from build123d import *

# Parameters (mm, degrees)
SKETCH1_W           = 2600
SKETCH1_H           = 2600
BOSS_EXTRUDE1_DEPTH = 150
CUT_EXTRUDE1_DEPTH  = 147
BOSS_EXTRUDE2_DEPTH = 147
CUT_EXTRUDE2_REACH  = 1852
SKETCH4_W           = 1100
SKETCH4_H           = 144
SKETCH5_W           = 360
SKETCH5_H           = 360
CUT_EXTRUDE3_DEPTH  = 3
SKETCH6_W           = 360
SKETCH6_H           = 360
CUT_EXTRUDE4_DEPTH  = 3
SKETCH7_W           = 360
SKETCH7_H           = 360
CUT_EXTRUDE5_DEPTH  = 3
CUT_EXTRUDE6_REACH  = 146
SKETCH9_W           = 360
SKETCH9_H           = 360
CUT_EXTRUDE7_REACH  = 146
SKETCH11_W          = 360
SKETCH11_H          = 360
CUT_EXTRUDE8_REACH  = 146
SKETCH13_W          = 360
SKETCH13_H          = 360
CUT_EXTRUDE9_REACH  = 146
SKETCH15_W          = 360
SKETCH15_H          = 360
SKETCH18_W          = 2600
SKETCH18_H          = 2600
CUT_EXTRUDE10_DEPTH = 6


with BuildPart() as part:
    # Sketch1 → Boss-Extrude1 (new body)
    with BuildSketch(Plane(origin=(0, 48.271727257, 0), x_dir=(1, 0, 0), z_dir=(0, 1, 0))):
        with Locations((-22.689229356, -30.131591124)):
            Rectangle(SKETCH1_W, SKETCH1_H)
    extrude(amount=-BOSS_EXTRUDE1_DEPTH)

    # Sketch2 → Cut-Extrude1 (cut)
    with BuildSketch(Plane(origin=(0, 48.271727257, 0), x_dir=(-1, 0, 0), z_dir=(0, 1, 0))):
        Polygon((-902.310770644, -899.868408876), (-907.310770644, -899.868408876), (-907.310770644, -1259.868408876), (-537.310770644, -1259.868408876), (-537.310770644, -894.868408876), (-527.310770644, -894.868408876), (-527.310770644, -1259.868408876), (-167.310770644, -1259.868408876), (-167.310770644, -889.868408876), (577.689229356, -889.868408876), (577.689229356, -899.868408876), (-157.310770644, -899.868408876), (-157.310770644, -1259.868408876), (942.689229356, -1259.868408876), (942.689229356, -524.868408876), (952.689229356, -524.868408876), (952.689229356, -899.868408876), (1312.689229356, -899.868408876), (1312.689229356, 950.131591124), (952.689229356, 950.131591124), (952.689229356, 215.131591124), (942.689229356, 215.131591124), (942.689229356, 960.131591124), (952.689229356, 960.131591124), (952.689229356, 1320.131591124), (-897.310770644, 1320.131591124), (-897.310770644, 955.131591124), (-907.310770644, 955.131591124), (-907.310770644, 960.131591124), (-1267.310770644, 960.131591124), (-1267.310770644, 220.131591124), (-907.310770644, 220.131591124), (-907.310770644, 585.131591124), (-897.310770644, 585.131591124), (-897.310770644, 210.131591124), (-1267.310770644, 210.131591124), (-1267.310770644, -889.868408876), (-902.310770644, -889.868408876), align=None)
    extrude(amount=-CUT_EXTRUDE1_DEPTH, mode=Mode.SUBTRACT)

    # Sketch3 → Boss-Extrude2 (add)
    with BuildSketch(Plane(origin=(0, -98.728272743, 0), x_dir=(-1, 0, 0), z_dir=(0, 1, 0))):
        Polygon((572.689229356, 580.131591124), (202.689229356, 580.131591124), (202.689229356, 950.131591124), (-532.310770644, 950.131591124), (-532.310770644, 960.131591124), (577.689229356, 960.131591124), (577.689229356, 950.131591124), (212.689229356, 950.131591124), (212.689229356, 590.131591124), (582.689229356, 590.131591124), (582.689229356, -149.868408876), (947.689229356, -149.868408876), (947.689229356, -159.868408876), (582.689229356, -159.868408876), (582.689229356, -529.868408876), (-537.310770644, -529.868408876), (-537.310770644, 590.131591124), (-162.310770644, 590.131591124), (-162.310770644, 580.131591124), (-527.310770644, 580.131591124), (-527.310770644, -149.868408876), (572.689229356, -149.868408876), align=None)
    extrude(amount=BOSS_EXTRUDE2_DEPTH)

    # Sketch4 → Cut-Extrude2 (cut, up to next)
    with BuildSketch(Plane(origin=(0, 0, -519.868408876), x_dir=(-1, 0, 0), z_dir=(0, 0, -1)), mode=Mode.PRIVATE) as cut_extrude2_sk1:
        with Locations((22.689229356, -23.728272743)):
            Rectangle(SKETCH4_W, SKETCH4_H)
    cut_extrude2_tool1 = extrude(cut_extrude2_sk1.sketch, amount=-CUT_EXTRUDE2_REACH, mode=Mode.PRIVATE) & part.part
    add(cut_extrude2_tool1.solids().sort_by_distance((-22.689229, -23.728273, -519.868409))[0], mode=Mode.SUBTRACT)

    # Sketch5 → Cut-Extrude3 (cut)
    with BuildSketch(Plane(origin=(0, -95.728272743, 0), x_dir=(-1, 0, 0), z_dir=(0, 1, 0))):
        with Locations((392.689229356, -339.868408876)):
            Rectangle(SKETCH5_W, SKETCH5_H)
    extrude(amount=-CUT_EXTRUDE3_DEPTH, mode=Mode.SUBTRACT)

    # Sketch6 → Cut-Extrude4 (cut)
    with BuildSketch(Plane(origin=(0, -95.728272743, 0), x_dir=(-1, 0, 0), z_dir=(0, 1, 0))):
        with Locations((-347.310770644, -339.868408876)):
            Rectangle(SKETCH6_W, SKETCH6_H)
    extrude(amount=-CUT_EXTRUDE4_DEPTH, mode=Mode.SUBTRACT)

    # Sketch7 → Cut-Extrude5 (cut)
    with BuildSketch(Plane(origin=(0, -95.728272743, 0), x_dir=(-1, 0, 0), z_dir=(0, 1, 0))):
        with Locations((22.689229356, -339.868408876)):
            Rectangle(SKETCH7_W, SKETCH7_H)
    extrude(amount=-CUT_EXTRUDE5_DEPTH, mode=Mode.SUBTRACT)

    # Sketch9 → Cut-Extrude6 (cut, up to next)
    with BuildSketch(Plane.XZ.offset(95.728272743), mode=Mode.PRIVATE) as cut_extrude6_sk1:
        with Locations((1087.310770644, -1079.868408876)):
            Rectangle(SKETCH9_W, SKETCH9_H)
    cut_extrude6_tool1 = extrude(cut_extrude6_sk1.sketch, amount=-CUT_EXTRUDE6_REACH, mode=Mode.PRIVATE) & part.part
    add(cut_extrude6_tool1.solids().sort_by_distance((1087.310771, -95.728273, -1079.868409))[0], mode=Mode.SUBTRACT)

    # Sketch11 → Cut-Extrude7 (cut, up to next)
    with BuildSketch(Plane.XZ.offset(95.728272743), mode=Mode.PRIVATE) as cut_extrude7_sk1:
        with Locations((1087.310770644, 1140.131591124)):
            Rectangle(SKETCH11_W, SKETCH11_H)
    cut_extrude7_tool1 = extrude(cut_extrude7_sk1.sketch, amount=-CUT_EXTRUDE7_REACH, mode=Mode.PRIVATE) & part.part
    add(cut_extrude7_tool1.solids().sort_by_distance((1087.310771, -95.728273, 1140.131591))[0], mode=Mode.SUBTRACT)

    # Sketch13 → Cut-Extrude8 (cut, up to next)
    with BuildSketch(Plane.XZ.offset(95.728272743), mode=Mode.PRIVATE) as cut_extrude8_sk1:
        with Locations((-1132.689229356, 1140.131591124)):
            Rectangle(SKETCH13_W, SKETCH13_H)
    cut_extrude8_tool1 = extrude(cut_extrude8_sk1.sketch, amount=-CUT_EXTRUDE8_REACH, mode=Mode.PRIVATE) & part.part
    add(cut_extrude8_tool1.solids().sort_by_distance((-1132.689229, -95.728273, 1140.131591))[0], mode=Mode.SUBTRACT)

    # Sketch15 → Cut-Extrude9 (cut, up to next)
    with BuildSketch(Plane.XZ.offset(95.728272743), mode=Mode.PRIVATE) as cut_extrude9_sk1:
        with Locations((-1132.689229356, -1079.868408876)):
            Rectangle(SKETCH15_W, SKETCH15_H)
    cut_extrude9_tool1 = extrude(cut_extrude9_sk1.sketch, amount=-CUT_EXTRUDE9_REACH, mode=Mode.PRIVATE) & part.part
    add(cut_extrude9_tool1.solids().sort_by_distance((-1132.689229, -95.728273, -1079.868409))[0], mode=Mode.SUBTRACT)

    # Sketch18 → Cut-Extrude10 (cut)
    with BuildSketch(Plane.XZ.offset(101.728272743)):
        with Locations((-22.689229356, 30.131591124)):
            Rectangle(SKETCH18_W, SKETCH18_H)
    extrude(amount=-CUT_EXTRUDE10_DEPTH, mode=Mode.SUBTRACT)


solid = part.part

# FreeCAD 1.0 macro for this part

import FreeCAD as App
import Part
import Sketcher

V = App.Vector
Q = App.Units.Quantity


def add_polygon(sketch, points):
    """Adds a closed chain of lines whose ends are joined by coincident constraints."""
    first, n = sketch.GeometryCount, len(points)
    for a, b in zip(points, points[1:] + points[:1]):
        sketch.addGeometry(Part.LineSegment(App.Vector(*a, 0), App.Vector(*b, 0)), False)
    for i in range(n):
        sketch.addConstraint(Sketcher.Constraint("Coincident", first + i, 2, first + (i + 1) % n, 1))

doc = App.newDocument("Part")
body = doc.addObject("PartDesign::Body", "Body")
body.AllowCompound = True

# Sketch on XZ plane
sketch1 = body.newObject("Sketcher::SketchObject", "Sketch")
sketch1.AttachmentSupport = (doc.getObject("XZ_Plane"), [""])
sketch1.MapMode = "FlatFace"
sketch1.AttachmentOffset = App.Placement(V(0, 0, -48.271727), App.Rotation())
add_polygon(sketch1, [(-1323, -1270), (-1323, 1330), (1277, 1330), (1277, -1270)])  # lines 0-3
sketch1.addConstraint(Sketcher.Constraint("Vertical", 0))
sketch1.addConstraint(Sketcher.Constraint("Horizontal", 1))
sketch1.addConstraint(Sketcher.Constraint("Vertical", 2))
sketch1.addConstraint(Sketcher.Constraint("Horizontal", 3))
sketch1.addConstraint(Sketcher.Constraint("Equal", 3, 0))
sketch1.addConstraint(Sketcher.Constraint("DistanceX", 1, 1, 1, 2, Q("2600 mm")))
sketch1.addConstraint(Sketcher.Constraint("DistanceX", 0, 2, -1, 1, Q("1322.689229 mm")))
sketch1.addConstraint(Sketcher.Constraint("DistanceY", -1, 1, 0, 2, Q("1330.131591 mm")))
pad1 = body.newObject("PartDesign::Pad", "Pad")
pad1.Profile = sketch1
pad1.Length = 150

# Sketch on XZ plane
sketch2 = body.newObject("Sketcher::SketchObject", "Sketch001")
sketch2.AttachmentSupport = (doc.getObject("XZ_Plane"), [""])
sketch2.MapMode = "FlatFace"
sketch2.AttachmentOffset = App.Placement(V(0, 0, -48.271727), App.Rotation())
add_polygon(sketch2, [(902, -900), (907, -900), (907, -1260), (537, -1260), (537, -895), (527, -895), (527, -1260), (167, -1260), (167, -890), (-578, -890), (-578, -900), (157, -900), (157, -1260), (-943, -1260), (-943, -525), (-953, -525), (-953, -900), (-1313, -900), (-1313, 950), (-953, 950), (-953, 215), (-943, 215), (-943, 960), (-953, 960), (-953, 1320), (897, 1320), (897, 955), (907, 955), (907, 960), (1267, 960), (1267, 220), (907, 220), (907, 585), (897, 585), (897, 210), (1267, 210), (1267, -890), (902, -890)])  # lines 0-37
sketch2.addConstraint(Sketcher.Constraint("Horizontal", 0))
sketch2.addConstraint(Sketcher.Constraint("Vertical", 1))
sketch2.addConstraint(Sketcher.Constraint("Horizontal", 2))
sketch2.addConstraint(Sketcher.Constraint("Vertical", 3))
sketch2.addConstraint(Sketcher.Constraint("Horizontal", 4))
sketch2.addConstraint(Sketcher.Constraint("Vertical", 5))
sketch2.addConstraint(Sketcher.Constraint("Horizontal", 6))
sketch2.addConstraint(Sketcher.Constraint("Vertical", 7))
sketch2.addConstraint(Sketcher.Constraint("Horizontal", 8))
sketch2.addConstraint(Sketcher.Constraint("Vertical", 9))
sketch2.addConstraint(Sketcher.Constraint("Horizontal", 10))
sketch2.addConstraint(Sketcher.Constraint("Vertical", 11))
sketch2.addConstraint(Sketcher.Constraint("Horizontal", 12))
sketch2.addConstraint(Sketcher.Constraint("Vertical", 13))
sketch2.addConstraint(Sketcher.Constraint("Horizontal", 14))
sketch2.addConstraint(Sketcher.Constraint("Vertical", 15))
sketch2.addConstraint(Sketcher.Constraint("Horizontal", 16))
sketch2.addConstraint(Sketcher.Constraint("Vertical", 17))
sketch2.addConstraint(Sketcher.Constraint("Horizontal", 18))
sketch2.addConstraint(Sketcher.Constraint("Vertical", 19))
sketch2.addConstraint(Sketcher.Constraint("Horizontal", 20))
sketch2.addConstraint(Sketcher.Constraint("Vertical", 21))
sketch2.addConstraint(Sketcher.Constraint("Horizontal", 22))
sketch2.addConstraint(Sketcher.Constraint("Vertical", 23))
sketch2.addConstraint(Sketcher.Constraint("Horizontal", 24))
sketch2.addConstraint(Sketcher.Constraint("Vertical", 25))
sketch2.addConstraint(Sketcher.Constraint("Horizontal", 26))
sketch2.addConstraint(Sketcher.Constraint("Vertical", 27))
sketch2.addConstraint(Sketcher.Constraint("Horizontal", 28))
sketch2.addConstraint(Sketcher.Constraint("Vertical", 29))
sketch2.addConstraint(Sketcher.Constraint("Horizontal", 30))
sketch2.addConstraint(Sketcher.Constraint("Vertical", 31))
sketch2.addConstraint(Sketcher.Constraint("Horizontal", 32))
sketch2.addConstraint(Sketcher.Constraint("Vertical", 33))
sketch2.addConstraint(Sketcher.Constraint("Horizontal", 34))
sketch2.addConstraint(Sketcher.Constraint("Vertical", 35))
sketch2.addConstraint(Sketcher.Constraint("Horizontal", 36))
sketch2.addConstraint(Sketcher.Constraint("Vertical", 37))
sketch2.addConstraint(Sketcher.Constraint("Horizontal", 2, 2, 5, 2))
sketch2.addConstraint(Sketcher.Constraint("Horizontal", 0, 2, 9, 2))
sketch2.addConstraint(Sketcher.Constraint("Horizontal", 6, 2, 11, 2))
sketch2.addConstraint(Sketcher.Constraint("Horizontal", 10, 2, 15, 2))
sketch2.addConstraint(Sketcher.Constraint("Horizontal", 22, 2, 27, 2))
sketch2.addConstraint(Sketcher.Constraint("Horizontal", 8, 2, 35, 2))
sketch2.addConstraint(Sketcher.Constraint("Vertical", 15, 2, 18, 2))
sketch2.addConstraint(Sketcher.Constraint("Vertical", 13, 2, 20, 2))
sketch2.addConstraint(Sketcher.Constraint("Vertical", 19, 2, 22, 2))
sketch2.addConstraint(Sketcher.Constraint("Vertical", 1, 2, 26, 2))
sketch2.addConstraint(Sketcher.Constraint("Vertical", 27, 2, 30, 2))
sketch2.addConstraint(Sketcher.Constraint("Vertical", 25, 2, 32, 2))
sketch2.addConstraint(Sketcher.Constraint("Vertical", 29, 2, 34, 2))
sketch2.addConstraint(Sketcher.Constraint("Equal", 4, 14))
sketch2.addConstraint(Sketcher.Constraint("Equal", 6, 16))
sketch2.addConstraint(Sketcher.Constraint("Equal", 22, 26))
sketch2.addConstraint(Sketcher.Constraint("Equal", 18, 28))
sketch2.addConstraint(Sketcher.Constraint("Equal", 2, 34))
sketch2.addConstraint(Sketcher.Constraint("Equal", 30, 1))
sketch2.addConstraint(Sketcher.Constraint("Equal", 36, 3))
sketch2.addConstraint(Sketcher.Constraint("Equal", 34, 7))
sketch2.addConstraint(Sketcher.Constraint("Equal", 10, 13))
sketch2.addConstraint(Sketcher.Constraint("Equal", 24, 17))
sketch2.addConstraint(Sketcher.Constraint("Equal", 13, 19))
sketch2.addConstraint(Sketcher.Constraint("Equal", 8, 21))
sketch2.addConstraint(Sketcher.Constraint("Equal", 11, 23))
sketch2.addConstraint(Sketcher.Constraint("Equal", 5, 25))
sketch2.addConstraint(Sketcher.Constraint("Equal", 25, 31))
sketch2.addConstraint(Sketcher.Constraint("Equal", 15, 33))
sketch2.addConstraint(Sketcher.Constraint("Equal", 12, 35))
sketch2.addConstraint(Sketcher.Constraint("DistanceX", 0, 1, 0, 2, Q("5 mm")))
sketch2.addConstraint(Sketcher.Constraint("DistanceX", 2, 2, 2, 1, Q("370 mm")))
sketch2.addConstraint(Sketcher.Constraint("DistanceX", 4, 2, 4, 1, Q("10 mm")))
sketch2.addConstraint(Sketcher.Constraint("DistanceX", 8, 2, 8, 1, Q("745 mm")))
sketch2.addConstraint(Sketcher.Constraint("DistanceX", 10, 1, 10, 2, Q("735 mm")))
sketch2.addConstraint(Sketcher.Constraint("DistanceX", 12, 2, 12, 1, Q("1100 mm")))
sketch2.addConstraint(Sketcher.Constraint("DistanceX", -1, 1, 0, 2, Q("907.310771 mm")))
sketch2.addConstraint(Sketcher.Constraint("DistanceY", 0, 2, -1, 1, Q("899.868409 mm")))
pocket1 = body.newObject("PartDesign::Pocket", "Pocket")
pocket1.Profile = sketch2
pocket1.Length = 147
pocket1.Reversed = True

# Sketch on XZ plane
sketch3 = body.newObject("Sketcher::SketchObject", "Sketch002")
sketch3.AttachmentSupport = (doc.getObject("XZ_Plane"), [""])
sketch3.MapMode = "FlatFace"
sketch3.AttachmentOffset = App.Placement(V(0, 0, 98.728273), App.Rotation())
add_polygon(sketch3, [(-203, 580), (-573, 580), (-573, -150), (527, -150), (527, 580), (162, 580), (162, 590), (537, 590), (537, -530), (-583, -530), (-583, -160), (-948, -160), (-948, -150), (-583, -150), (-583, 590), (-213, 590), (-213, 950), (-578, 950), (-578, 960), (532, 960), (532, 950), (-203, 950)])  # lines 0-21
sketch3.addConstraint(Sketcher.Constraint("Horizontal", 0))
sketch3.addConstraint(Sketcher.Constraint("Vertical", 1))
sketch3.addConstraint(Sketcher.Constraint("Horizontal", 2))
sketch3.addConstraint(Sketcher.Constraint("Vertical", 3))
sketch3.addConstraint(Sketcher.Constraint("Horizontal", 4))
sketch3.addConstraint(Sketcher.Constraint("Vertical", 5))
sketch3.addConstraint(Sketcher.Constraint("Horizontal", 6))
sketch3.addConstraint(Sketcher.Constraint("Vertical", 7))
sketch3.addConstraint(Sketcher.Constraint("Horizontal", 8))
sketch3.addConstraint(Sketcher.Constraint("Vertical", 9))
sketch3.addConstraint(Sketcher.Constraint("Horizontal", 10))
sketch3.addConstraint(Sketcher.Constraint("Vertical", 11))
sketch3.addConstraint(Sketcher.Constraint("Horizontal", 12))
sketch3.addConstraint(Sketcher.Constraint("Vertical", 13))
sketch3.addConstraint(Sketcher.Constraint("Horizontal", 14))
sketch3.addConstraint(Sketcher.Constraint("Vertical", 15))
sketch3.addConstraint(Sketcher.Constraint("Horizontal", 16))
sketch3.addConstraint(Sketcher.Constraint("Vertical", 17))
sketch3.addConstraint(Sketcher.Constraint("Horizontal", 18))
sketch3.addConstraint(Sketcher.Constraint("Vertical", 19))
sketch3.addConstraint(Sketcher.Constraint("Horizontal", 20))
sketch3.addConstraint(Sketcher.Constraint("Vertical", 21))
sketch3.addConstraint(Sketcher.Constraint("Horizontal", 0, 2, 3, 2))
sketch3.addConstraint(Sketcher.Constraint("Horizontal", 2, 2, 11, 2))
sketch3.addConstraint(Sketcher.Constraint("Horizontal", 6, 2, 13, 2))
sketch3.addConstraint(Sketcher.Constraint("Horizontal", 16, 2, 19, 2))
sketch3.addConstraint(Sketcher.Constraint("Vertical", 9, 2, 12, 2))
sketch3.addConstraint(Sketcher.Constraint("Equal", 4, 10))
sketch3.addConstraint(Sketcher.Constraint("Equal", 0, 14))
sketch3.addConstraint(Sketcher.Constraint("Equal", 12, 16))
sketch3.addConstraint(Sketcher.Constraint("Equal", 8, 7))
sketch3.addConstraint(Sketcher.Constraint("Equal", 14, 9))
sketch3.addConstraint(Sketcher.Constraint("Equal", 5, 11))
sketch3.addConstraint(Sketcher.Constraint("Equal", 11, 17))
sketch3.addConstraint(Sketcher.Constraint("Equal", 9, 21))
sketch3.addConstraint(Sketcher.Constraint("DistanceX", 0, 2, 0, 1, Q("370 mm")))
sketch3.addConstraint(Sketcher.Constraint("DistanceX", 2, 1, 2, 2, Q("1100 mm")))
sketch3.addConstraint(Sketcher.Constraint("DistanceX", 4, 2, 4, 1, Q("365 mm")))
sketch3.addConstraint(Sketcher.Constraint("DistanceX", 6, 1, 6, 2, Q("375 mm")))
sketch3.addConstraint(Sketcher.Constraint("DistanceX", 8, 2, 8, 1, Q("1120 mm")))
sketch3.addConstraint(Sketcher.Constraint("DistanceX", 18, 1, 18, 2, Q("1110 mm")))
sketch3.addConstraint(Sketcher.Constraint("DistanceY", 1, 2, 1, 1, Q("730 mm")))
sketch3.addConstraint(Sketcher.Constraint("DistanceX", 0, 2, -1, 1, Q("572.689229 mm")))
sketch3.addConstraint(Sketcher.Constraint("DistanceY", -1, 1, 0, 2, Q("580.131591 mm")))
pad2 = body.newObject("PartDesign::Pad", "Pad001")
pad2.Profile = sketch3
pad2.Length = 147
pad2.Reversed = True

# Sketch on XY plane
sketch4 = body.newObject("Sketcher::SketchObject", "Sketch003")
sketch4.AttachmentSupport = (doc.getObject("XY_Plane"), [""])
sketch4.MapMode = "FlatFace"
sketch4.AttachmentOffset = App.Placement(V(0, 0, -519.868409), App.Rotation())
add_polygon(sketch4, [(527, 48), (527, -96), (-573, -96), (-573, 48)])  # lines 0-3
sketch4.addConstraint(Sketcher.Constraint("Vertical", 0))
sketch4.addConstraint(Sketcher.Constraint("Horizontal", 1))
sketch4.addConstraint(Sketcher.Constraint("Vertical", 2))
sketch4.addConstraint(Sketcher.Constraint("Horizontal", 3))
sketch4.addConstraint(Sketcher.Constraint("DistanceX", 1, 2, 1, 1, Q("1100 mm")))
sketch4.addConstraint(Sketcher.Constraint("DistanceY", 0, 2, 0, 1, Q("144 mm")))
sketch4.addConstraint(Sketcher.Constraint("DistanceX", -1, 1, 0, 2, Q("527.310771 mm")))
sketch4.addConstraint(Sketcher.Constraint("DistanceY", 0, 2, -1, 1, Q("95.728273 mm")))
pocket2 = body.newObject("PartDesign::Pocket", "Pocket001")
pocket2.Profile = sketch4
pocket2.Type = "UpToFirst"
pocket2.Reversed = True

# Sketch on XZ plane
sketch5 = body.newObject("Sketcher::SketchObject", "Sketch004")
sketch5.AttachmentSupport = (doc.getObject("XZ_Plane"), [""])
sketch5.MapMode = "FlatFace"
sketch5.AttachmentOffset = App.Placement(V(0, 0, 95.728273), App.Rotation())
add_polygon(sketch5, [(-213, -160), (-213, -520), (-573, -520), (-573, -160)])  # lines 0-3
sketch5.addConstraint(Sketcher.Constraint("Vertical", 0))
sketch5.addConstraint(Sketcher.Constraint("Horizontal", 1))
sketch5.addConstraint(Sketcher.Constraint("Vertical", 2))
sketch5.addConstraint(Sketcher.Constraint("Horizontal", 3))
sketch5.addConstraint(Sketcher.Constraint("Equal", 3, 0))
sketch5.addConstraint(Sketcher.Constraint("DistanceX", 1, 2, 1, 1, Q("360 mm")))
sketch5.addConstraint(Sketcher.Constraint("DistanceX", 0, 2, -1, 1, Q("212.689229 mm")))
sketch5.addConstraint(Sketcher.Constraint("DistanceY", 0, 2, -1, 1, Q("519.868409 mm")))
pocket3 = body.newObject("PartDesign::Pocket", "Pocket002")
pocket3.Profile = sketch5
pocket3.Length = 3
pocket3.Reversed = True

# Sketch on XZ plane
sketch6 = body.newObject("Sketcher::SketchObject", "Sketch005")
sketch6.AttachmentSupport = (doc.getObject("XZ_Plane"), [""])
sketch6.MapMode = "FlatFace"
sketch6.AttachmentOffset = App.Placement(V(0, 0, 95.728273), App.Rotation())
add_polygon(sketch6, [(527, -160), (527, -520), (167, -520), (167, -160)])  # lines 0-3
sketch6.addConstraint(Sketcher.Constraint("Vertical", 0))
sketch6.addConstraint(Sketcher.Constraint("Horizontal", 1))
sketch6.addConstraint(Sketcher.Constraint("Vertical", 2))
sketch6.addConstraint(Sketcher.Constraint("Horizontal", 3))
sketch6.addConstraint(Sketcher.Constraint("Equal", 3, 0))
sketch6.addConstraint(Sketcher.Constraint("DistanceX", 1, 2, 1, 1, Q("360 mm")))
sketch6.addConstraint(Sketcher.Constraint("DistanceX", -1, 1, 0, 2, Q("527.310771 mm")))
sketch6.addConstraint(Sketcher.Constraint("DistanceY", 0, 2, -1, 1, Q("519.868409 mm")))
pocket4 = body.newObject("PartDesign::Pocket", "Pocket003")
pocket4.Profile = sketch6
pocket4.Length = 3
pocket4.Reversed = True

# Sketch on XZ plane
sketch7 = body.newObject("Sketcher::SketchObject", "Sketch006")
sketch7.AttachmentSupport = (doc.getObject("XZ_Plane"), [""])
sketch7.MapMode = "FlatFace"
sketch7.AttachmentOffset = App.Placement(V(0, 0, 95.728273), App.Rotation())
add_polygon(sketch7, [(157, -160), (157, -520), (-203, -520), (-203, -160)])  # lines 0-3
sketch7.addConstraint(Sketcher.Constraint("Vertical", 0))
sketch7.addConstraint(Sketcher.Constraint("Horizontal", 1))
sketch7.addConstraint(Sketcher.Constraint("Vertical", 2))
sketch7.addConstraint(Sketcher.Constraint("Horizontal", 3))
sketch7.addConstraint(Sketcher.Constraint("Equal", 3, 0))
sketch7.addConstraint(Sketcher.Constraint("DistanceX", 1, 2, 1, 1, Q("360 mm")))
sketch7.addConstraint(Sketcher.Constraint("DistanceX", -1, 1, 0, 2, Q("157.310771 mm")))
sketch7.addConstraint(Sketcher.Constraint("DistanceY", 0, 2, -1, 1, Q("519.868409 mm")))
pocket5 = body.newObject("PartDesign::Pocket", "Pocket004")
pocket5.Profile = sketch7
pocket5.Length = 3
pocket5.Reversed = True

# Sketch on XZ plane
sketch8 = body.newObject("Sketcher::SketchObject", "Sketch007")
sketch8.AttachmentSupport = (doc.getObject("XZ_Plane"), [""])
sketch8.MapMode = "FlatFace"
sketch8.AttachmentOffset = App.Placement(V(0, 0, 95.728273), App.Rotation())
add_polygon(sketch8, [(907, -900), (907, -1260), (1267, -1260), (1267, -900)])  # lines 0-3
sketch8.addConstraint(Sketcher.Constraint("Vertical", 0))
sketch8.addConstraint(Sketcher.Constraint("Horizontal", 1))
sketch8.addConstraint(Sketcher.Constraint("Vertical", 2))
sketch8.addConstraint(Sketcher.Constraint("Horizontal", 3))
sketch8.addConstraint(Sketcher.Constraint("Equal", 3, 0))
sketch8.addConstraint(Sketcher.Constraint("DistanceX", 1, 1, 1, 2, Q("360 mm")))
sketch8.addConstraint(Sketcher.Constraint("DistanceX", -1, 1, 0, 2, Q("907.310771 mm")))
sketch8.addConstraint(Sketcher.Constraint("DistanceY", 0, 2, -1, 1, Q("1259.868409 mm")))
pocket6 = body.newObject("PartDesign::Pocket", "Pocket005")
pocket6.Profile = sketch8
pocket6.Type = "UpToFirst"

# Sketch on XZ plane
sketch9 = body.newObject("Sketcher::SketchObject", "Sketch008")
sketch9.AttachmentSupport = (doc.getObject("XZ_Plane"), [""])
sketch9.MapMode = "FlatFace"
sketch9.AttachmentOffset = App.Placement(V(0, 0, 95.728273), App.Rotation())
add_polygon(sketch9, [(907, 1320), (907, 960), (1267, 960), (1267, 1320)])  # lines 0-3
sketch9.addConstraint(Sketcher.Constraint("Vertical", 0))
sketch9.addConstraint(Sketcher.Constraint("Horizontal", 1))
sketch9.addConstraint(Sketcher.Constraint("Vertical", 2))
sketch9.addConstraint(Sketcher.Constraint("Horizontal", 3))
sketch9.addConstraint(Sketcher.Constraint("Equal", 3, 0))
sketch9.addConstraint(Sketcher.Constraint("DistanceX", 1, 1, 1, 2, Q("360 mm")))
sketch9.addConstraint(Sketcher.Constraint("DistanceX", -1, 1, 0, 2, Q("907.310771 mm")))
sketch9.addConstraint(Sketcher.Constraint("DistanceY", -1, 1, 0, 2, Q("960.131591 mm")))
pocket7 = body.newObject("PartDesign::Pocket", "Pocket006")
pocket7.Profile = sketch9
pocket7.Type = "UpToFirst"

# Sketch on XZ plane
sketch10 = body.newObject("Sketcher::SketchObject", "Sketch009")
sketch10.AttachmentSupport = (doc.getObject("XZ_Plane"), [""])
sketch10.MapMode = "FlatFace"
sketch10.AttachmentOffset = App.Placement(V(0, 0, 95.728273), App.Rotation())
add_polygon(sketch10, [(-1313, 1320), (-1313, 960), (-953, 960), (-953, 1320)])  # lines 0-3
sketch10.addConstraint(Sketcher.Constraint("Vertical", 0))
sketch10.addConstraint(Sketcher.Constraint("Horizontal", 1))
sketch10.addConstraint(Sketcher.Constraint("Vertical", 2))
sketch10.addConstraint(Sketcher.Constraint("Horizontal", 3))
sketch10.addConstraint(Sketcher.Constraint("Equal", 3, 0))
sketch10.addConstraint(Sketcher.Constraint("DistanceX", 1, 1, 1, 2, Q("360 mm")))
sketch10.addConstraint(Sketcher.Constraint("DistanceX", 0, 2, -1, 1, Q("1312.689229 mm")))
sketch10.addConstraint(Sketcher.Constraint("DistanceY", -1, 1, 0, 2, Q("960.131591 mm")))
pocket8 = body.newObject("PartDesign::Pocket", "Pocket007")
pocket8.Profile = sketch10
pocket8.Type = "UpToFirst"

# Sketch on XZ plane
sketch11 = body.newObject("Sketcher::SketchObject", "Sketch010")
sketch11.AttachmentSupport = (doc.getObject("XZ_Plane"), [""])
sketch11.MapMode = "FlatFace"
sketch11.AttachmentOffset = App.Placement(V(0, 0, 95.728273), App.Rotation())
add_polygon(sketch11, [(-1313, -900), (-1313, -1260), (-953, -1260), (-953, -900)])  # lines 0-3
sketch11.addConstraint(Sketcher.Constraint("Vertical", 0))
sketch11.addConstraint(Sketcher.Constraint("Horizontal", 1))
sketch11.addConstraint(Sketcher.Constraint("Vertical", 2))
sketch11.addConstraint(Sketcher.Constraint("Horizontal", 3))
sketch11.addConstraint(Sketcher.Constraint("Equal", 3, 0))
sketch11.addConstraint(Sketcher.Constraint("DistanceX", 1, 1, 1, 2, Q("360 mm")))
sketch11.addConstraint(Sketcher.Constraint("DistanceX", 0, 2, -1, 1, Q("1312.689229 mm")))
sketch11.addConstraint(Sketcher.Constraint("DistanceY", 0, 2, -1, 1, Q("1259.868409 mm")))
pocket9 = body.newObject("PartDesign::Pocket", "Pocket008")
pocket9.Profile = sketch11
pocket9.Type = "UpToFirst"

# Sketch on XZ plane
sketch12 = body.newObject("Sketcher::SketchObject", "Sketch011")
sketch12.AttachmentSupport = (doc.getObject("XZ_Plane"), [""])
sketch12.MapMode = "FlatFace"
sketch12.AttachmentOffset = App.Placement(V(0, 0, 101.728273), App.Rotation())
add_polygon(sketch12, [(-1323, 1330), (-1323, -1270), (1277, -1270), (1277, 1330)])  # lines 0-3
sketch12.addConstraint(Sketcher.Constraint("Vertical", 0))
sketch12.addConstraint(Sketcher.Constraint("Horizontal", 1))
sketch12.addConstraint(Sketcher.Constraint("Vertical", 2))
sketch12.addConstraint(Sketcher.Constraint("Horizontal", 3))
sketch12.addConstraint(Sketcher.Constraint("Equal", 3, 0))
sketch12.addConstraint(Sketcher.Constraint("DistanceX", 1, 1, 1, 2, Q("2600 mm")))
sketch12.addConstraint(Sketcher.Constraint("DistanceX", 0, 2, -1, 1, Q("1322.689229 mm")))
sketch12.addConstraint(Sketcher.Constraint("DistanceY", 0, 2, -1, 1, Q("1269.868409 mm")))
pocket10 = body.newObject("PartDesign::Pocket", "Pocket009")
pocket10.Profile = sketch12
pocket10.Length = 6

doc.recompute()
